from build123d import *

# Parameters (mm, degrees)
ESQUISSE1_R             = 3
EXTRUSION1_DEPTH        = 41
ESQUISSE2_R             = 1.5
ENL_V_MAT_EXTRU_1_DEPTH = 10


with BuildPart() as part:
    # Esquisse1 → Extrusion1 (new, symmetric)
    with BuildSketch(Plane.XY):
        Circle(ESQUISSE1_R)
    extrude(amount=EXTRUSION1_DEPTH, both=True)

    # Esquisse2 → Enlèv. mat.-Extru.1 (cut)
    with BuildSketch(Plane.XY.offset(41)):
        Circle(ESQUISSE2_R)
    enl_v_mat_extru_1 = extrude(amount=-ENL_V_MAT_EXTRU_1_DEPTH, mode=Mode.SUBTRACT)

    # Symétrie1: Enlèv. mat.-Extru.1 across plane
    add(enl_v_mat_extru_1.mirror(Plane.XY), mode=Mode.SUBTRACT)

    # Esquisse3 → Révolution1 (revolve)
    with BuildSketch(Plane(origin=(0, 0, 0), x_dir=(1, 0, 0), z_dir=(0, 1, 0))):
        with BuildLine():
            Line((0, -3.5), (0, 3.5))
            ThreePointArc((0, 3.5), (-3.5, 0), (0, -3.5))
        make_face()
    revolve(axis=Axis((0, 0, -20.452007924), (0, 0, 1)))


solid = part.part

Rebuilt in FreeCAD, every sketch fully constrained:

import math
import FreeCAD as App
import Part
import Sketcher
Q = App.Units.Quantity

doc = App.newDocument("Part")
params = doc.addObject("Spreadsheet::Sheet", "Params")
for row, (alias, value) in enumerate([
    ("sketch1_diameter", "6 mm"),
    ("pad1_length", "82 mm"),
    ("sketch2_diameter", "3 mm"),
    ("pocket1_length", "10 mm"),
    ("sketch3_radius", "3.5 mm"),
    ("revolution_angle", "360 deg"),
], start=1):
    params.set(f"A{row}", alias)
    params.set(f"B{row}", "=" + value)
    params.setAlias(f"B{row}", alias)

body = doc.addObject("PartDesign::Body", "Body")

# Sketch on XY plane
sketch1 = body.newObject("Sketcher::SketchObject", "Sketch")
sketch1.AttachmentSupport = (doc.getObject("XY_Plane"), [""])
sketch1.MapMode = "FlatFace"
sketch1.addGeometry(Part.Circle(App.Vector(0, 0, 0), App.Vector(0, 0, 1), 3), False)
sketch1.addConstraint([
    Sketcher.Constraint("Coincident", 0, 3, -1, 1),
    Sketcher.Constraint("Diameter", 0, Q("6 mm")),
])
sketch1.setExpression("Constraints[1]", "Params.sketch1_diameter")
pad1 = body.newObject("PartDesign::Pad", "Pad")
pad1.Profile = sketch1
pad1.setExpression("Length", "Params.pad1_length")
pad1.Midplane = True

# Sketch on XY plane
sketch2 = body.newObject("Sketcher::SketchObject", "Sketch001")
sketch2.AttachmentSupport = (doc.getObject("XY_Plane"), [""])
sketch2.MapMode = "FlatFace"
sketch2.AttachmentOffset = App.Placement(App.Vector(0, 0, 41), App.Rotation())
sketch2.addGeometry(Part.Circle(App.Vector(0, 0, 0), App.Vector(0, 0, 1), 1.5), False)
sketch2.addConstraint([
    Sketcher.Constraint("Coincident", 0, 3, -1, 1),
    Sketcher.Constraint("Diameter", 0, Q("3 mm")),
])
sketch2.setExpression("Constraints[1]", "Params.sketch2_diameter")
pocket1 = body.newObject("PartDesign::Pocket", "Pocket")
pocket1.Profile = sketch2
pocket1.setExpression("Length", "Params.pocket1_length")
doc.recompute()

mirrored = body.newObject("PartDesign::Mirrored", "Mirrored")
mirrored.Originals = [pocket1]
mirrored.MirrorPlane = (doc.getObject("XY_Plane"), [""])
body.Tip = mirrored

# Sketch on XZ plane
sketch3 = body.newObject("Sketcher::SketchObject", "Sketch002")
sketch3.AttachmentSupport = (doc.getObject("XZ_Plane"), [""])
sketch3.MapMode = "FlatFace"
sketch3.addGeometry([
    Part.LineSegment(App.Vector(0, 3.5, 0), App.Vector(0, -3.5, 0)),
    Part.ArcOfCircle(Part.Circle(App.Vector(0, 0, 0), App.Vector(0, 0, 1), 3.5), math.radians(90), math.radians(270)),
], False)
sketch3.addConstraint([
    Sketcher.Constraint("Coincident", 0, 1, 1, 1),
    Sketcher.Constraint("Coincident", 1, 2, 0, 2),
    Sketcher.Constraint("Vertical", 0),
    Sketcher.Constraint("Coincident", 1, 3, -1, 1),
    Sketcher.Constraint("PointOnObject", 0, 1, -2),
    Sketcher.Constraint("Radius", 1, Q("3.5 mm")),
])
sketch3.setExpression("Constraints[5]", "Params.sketch3_radius")
revolution = body.newObject("PartDesign::Revolution", "Revolution")
revolution.Profile = sketch3
revolution.ReferenceAxis = (sketch3, ["V_Axis"])
revolution.setExpression("Angle", "Params.revolution_angle")

doc.recompute()
